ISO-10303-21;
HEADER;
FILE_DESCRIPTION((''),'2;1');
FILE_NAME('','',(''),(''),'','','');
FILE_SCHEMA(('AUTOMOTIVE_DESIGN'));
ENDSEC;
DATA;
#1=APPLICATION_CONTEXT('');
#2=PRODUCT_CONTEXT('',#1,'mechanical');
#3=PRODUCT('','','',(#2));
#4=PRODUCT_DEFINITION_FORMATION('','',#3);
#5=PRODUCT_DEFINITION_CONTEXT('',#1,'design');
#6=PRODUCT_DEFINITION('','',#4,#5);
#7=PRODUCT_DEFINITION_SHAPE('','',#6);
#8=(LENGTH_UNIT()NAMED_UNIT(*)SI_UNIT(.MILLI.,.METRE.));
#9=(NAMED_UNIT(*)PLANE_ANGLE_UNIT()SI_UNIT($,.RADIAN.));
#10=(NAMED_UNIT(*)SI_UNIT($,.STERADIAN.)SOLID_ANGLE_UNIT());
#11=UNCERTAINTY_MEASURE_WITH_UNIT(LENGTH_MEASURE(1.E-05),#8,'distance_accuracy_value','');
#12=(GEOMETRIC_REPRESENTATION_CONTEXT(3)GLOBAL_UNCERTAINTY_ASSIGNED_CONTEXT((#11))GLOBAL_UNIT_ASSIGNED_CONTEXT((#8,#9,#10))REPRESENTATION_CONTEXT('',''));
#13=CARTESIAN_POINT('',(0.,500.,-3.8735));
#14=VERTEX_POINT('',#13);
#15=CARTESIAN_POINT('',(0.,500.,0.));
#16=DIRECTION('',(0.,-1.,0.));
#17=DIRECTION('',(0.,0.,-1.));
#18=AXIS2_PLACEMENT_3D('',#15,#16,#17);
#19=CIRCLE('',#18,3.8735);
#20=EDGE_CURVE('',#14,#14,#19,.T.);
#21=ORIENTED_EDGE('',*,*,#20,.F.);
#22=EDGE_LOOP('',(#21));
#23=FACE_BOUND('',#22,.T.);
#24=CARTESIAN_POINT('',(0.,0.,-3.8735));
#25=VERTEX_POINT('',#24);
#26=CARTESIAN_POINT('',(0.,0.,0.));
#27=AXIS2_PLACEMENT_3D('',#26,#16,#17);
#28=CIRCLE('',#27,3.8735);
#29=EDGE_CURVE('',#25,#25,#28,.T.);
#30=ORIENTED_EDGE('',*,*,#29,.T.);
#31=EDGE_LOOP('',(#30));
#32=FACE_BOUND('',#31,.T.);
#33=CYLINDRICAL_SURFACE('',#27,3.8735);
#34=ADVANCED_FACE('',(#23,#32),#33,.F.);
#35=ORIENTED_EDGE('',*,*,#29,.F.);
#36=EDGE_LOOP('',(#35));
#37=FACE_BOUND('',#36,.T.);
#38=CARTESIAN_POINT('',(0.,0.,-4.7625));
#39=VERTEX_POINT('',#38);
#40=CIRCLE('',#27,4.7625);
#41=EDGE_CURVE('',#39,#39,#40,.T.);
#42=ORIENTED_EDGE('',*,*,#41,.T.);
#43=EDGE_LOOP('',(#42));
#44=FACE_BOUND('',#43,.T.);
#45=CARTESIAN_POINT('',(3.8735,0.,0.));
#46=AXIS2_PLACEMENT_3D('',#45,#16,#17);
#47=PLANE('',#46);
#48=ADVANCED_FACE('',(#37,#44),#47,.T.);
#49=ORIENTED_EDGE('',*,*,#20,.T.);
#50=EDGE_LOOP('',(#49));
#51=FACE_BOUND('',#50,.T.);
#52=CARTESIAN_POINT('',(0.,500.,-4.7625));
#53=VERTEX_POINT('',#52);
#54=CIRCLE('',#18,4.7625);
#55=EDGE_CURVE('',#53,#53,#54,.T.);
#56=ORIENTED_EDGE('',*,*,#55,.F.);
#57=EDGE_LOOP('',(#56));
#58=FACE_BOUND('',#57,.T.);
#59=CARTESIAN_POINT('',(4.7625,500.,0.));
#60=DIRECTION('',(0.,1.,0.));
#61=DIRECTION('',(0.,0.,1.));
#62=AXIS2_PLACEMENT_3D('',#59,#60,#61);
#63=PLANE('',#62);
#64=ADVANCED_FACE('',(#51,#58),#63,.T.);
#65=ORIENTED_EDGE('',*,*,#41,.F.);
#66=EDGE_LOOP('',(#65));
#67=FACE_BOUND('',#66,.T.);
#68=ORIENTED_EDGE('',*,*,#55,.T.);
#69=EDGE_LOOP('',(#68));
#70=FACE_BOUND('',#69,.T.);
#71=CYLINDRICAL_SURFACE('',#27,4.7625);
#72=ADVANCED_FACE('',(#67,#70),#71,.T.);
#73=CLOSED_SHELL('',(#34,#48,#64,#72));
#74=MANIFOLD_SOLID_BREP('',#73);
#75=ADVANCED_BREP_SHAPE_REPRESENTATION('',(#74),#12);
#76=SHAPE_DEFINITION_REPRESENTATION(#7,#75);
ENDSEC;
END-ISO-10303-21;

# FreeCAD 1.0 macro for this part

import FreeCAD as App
import Part
import Sketcher

doc = App.newDocument("Part")
body = doc.addObject("PartDesign::Body", "Body")

sketch1 = doc.addObject("Sketcher::SketchObject", "Sketch")
body.addObject(sketch1)
sketch1.AttachmentSupport = (doc.XY_Plane, [""])
sketch1.MapMode = "FlatFace"
sketch1.addGeometry(Part.LineSegment(App.Vector(3.9, 500, 0), App.Vector(3.9, 0, 0)), False)
sketch1.addGeometry(Part.LineSegment(App.Vector(3.9, 0, 0), App.Vector(4.8, 0, 0)), False)
sketch1.addGeometry(Part.LineSegment(App.Vector(4.8, 0, 0), App.Vector(4.8, 500, 0)), False)
sketch1.addGeometry(Part.LineSegment(App.Vector(4.8, 500, 0), App.Vector(3.9, 500, 0)), False)
sketch1.addConstraint(Sketcher.Constraint("Coincident", 0, 2, 1, 1))
sketch1.addConstraint(Sketcher.Constraint("Coincident", 1, 2, 2, 1))
sketch1.addConstraint(Sketcher.Constraint("Coincident", 2, 2, 3, 1))
sketch1.addConstraint(Sketcher.Constraint("Coincident", 3, 2, 0, 1))
sketch1.addConstraint(Sketcher.Constraint("Vertical", 0))
sketch1.addConstraint(Sketcher.Constraint("Horizontal", 1))
sketch1.addConstraint(Sketcher.Constraint("Vertical", 2))
sketch1.addConstraint(Sketcher.Constraint("Horizontal", 3))
sketch1.addConstraint(Sketcher.Constraint("PointOnObject", 0, 2, -1))
sketch1.addConstraint(Sketcher.Constraint("DistanceY", 0, 2, 0, 1, 500.0))
sketch1.addConstraint(Sketcher.Constraint("DistanceX", 1, 1, 1, 2, 0.889))
sketch1.addConstraint(Sketcher.Constraint("DistanceX", -1, 1, 0, 2, 3.8735))
revolution = doc.addObject("PartDesign::Revolution", "Revolution")
body.addObject(revolution)
revolution.Profile = sketch1
revolution.ReferenceAxis = (sketch1, ["V_Axis"])
revolution.Angle = 360

doc.recompute()
